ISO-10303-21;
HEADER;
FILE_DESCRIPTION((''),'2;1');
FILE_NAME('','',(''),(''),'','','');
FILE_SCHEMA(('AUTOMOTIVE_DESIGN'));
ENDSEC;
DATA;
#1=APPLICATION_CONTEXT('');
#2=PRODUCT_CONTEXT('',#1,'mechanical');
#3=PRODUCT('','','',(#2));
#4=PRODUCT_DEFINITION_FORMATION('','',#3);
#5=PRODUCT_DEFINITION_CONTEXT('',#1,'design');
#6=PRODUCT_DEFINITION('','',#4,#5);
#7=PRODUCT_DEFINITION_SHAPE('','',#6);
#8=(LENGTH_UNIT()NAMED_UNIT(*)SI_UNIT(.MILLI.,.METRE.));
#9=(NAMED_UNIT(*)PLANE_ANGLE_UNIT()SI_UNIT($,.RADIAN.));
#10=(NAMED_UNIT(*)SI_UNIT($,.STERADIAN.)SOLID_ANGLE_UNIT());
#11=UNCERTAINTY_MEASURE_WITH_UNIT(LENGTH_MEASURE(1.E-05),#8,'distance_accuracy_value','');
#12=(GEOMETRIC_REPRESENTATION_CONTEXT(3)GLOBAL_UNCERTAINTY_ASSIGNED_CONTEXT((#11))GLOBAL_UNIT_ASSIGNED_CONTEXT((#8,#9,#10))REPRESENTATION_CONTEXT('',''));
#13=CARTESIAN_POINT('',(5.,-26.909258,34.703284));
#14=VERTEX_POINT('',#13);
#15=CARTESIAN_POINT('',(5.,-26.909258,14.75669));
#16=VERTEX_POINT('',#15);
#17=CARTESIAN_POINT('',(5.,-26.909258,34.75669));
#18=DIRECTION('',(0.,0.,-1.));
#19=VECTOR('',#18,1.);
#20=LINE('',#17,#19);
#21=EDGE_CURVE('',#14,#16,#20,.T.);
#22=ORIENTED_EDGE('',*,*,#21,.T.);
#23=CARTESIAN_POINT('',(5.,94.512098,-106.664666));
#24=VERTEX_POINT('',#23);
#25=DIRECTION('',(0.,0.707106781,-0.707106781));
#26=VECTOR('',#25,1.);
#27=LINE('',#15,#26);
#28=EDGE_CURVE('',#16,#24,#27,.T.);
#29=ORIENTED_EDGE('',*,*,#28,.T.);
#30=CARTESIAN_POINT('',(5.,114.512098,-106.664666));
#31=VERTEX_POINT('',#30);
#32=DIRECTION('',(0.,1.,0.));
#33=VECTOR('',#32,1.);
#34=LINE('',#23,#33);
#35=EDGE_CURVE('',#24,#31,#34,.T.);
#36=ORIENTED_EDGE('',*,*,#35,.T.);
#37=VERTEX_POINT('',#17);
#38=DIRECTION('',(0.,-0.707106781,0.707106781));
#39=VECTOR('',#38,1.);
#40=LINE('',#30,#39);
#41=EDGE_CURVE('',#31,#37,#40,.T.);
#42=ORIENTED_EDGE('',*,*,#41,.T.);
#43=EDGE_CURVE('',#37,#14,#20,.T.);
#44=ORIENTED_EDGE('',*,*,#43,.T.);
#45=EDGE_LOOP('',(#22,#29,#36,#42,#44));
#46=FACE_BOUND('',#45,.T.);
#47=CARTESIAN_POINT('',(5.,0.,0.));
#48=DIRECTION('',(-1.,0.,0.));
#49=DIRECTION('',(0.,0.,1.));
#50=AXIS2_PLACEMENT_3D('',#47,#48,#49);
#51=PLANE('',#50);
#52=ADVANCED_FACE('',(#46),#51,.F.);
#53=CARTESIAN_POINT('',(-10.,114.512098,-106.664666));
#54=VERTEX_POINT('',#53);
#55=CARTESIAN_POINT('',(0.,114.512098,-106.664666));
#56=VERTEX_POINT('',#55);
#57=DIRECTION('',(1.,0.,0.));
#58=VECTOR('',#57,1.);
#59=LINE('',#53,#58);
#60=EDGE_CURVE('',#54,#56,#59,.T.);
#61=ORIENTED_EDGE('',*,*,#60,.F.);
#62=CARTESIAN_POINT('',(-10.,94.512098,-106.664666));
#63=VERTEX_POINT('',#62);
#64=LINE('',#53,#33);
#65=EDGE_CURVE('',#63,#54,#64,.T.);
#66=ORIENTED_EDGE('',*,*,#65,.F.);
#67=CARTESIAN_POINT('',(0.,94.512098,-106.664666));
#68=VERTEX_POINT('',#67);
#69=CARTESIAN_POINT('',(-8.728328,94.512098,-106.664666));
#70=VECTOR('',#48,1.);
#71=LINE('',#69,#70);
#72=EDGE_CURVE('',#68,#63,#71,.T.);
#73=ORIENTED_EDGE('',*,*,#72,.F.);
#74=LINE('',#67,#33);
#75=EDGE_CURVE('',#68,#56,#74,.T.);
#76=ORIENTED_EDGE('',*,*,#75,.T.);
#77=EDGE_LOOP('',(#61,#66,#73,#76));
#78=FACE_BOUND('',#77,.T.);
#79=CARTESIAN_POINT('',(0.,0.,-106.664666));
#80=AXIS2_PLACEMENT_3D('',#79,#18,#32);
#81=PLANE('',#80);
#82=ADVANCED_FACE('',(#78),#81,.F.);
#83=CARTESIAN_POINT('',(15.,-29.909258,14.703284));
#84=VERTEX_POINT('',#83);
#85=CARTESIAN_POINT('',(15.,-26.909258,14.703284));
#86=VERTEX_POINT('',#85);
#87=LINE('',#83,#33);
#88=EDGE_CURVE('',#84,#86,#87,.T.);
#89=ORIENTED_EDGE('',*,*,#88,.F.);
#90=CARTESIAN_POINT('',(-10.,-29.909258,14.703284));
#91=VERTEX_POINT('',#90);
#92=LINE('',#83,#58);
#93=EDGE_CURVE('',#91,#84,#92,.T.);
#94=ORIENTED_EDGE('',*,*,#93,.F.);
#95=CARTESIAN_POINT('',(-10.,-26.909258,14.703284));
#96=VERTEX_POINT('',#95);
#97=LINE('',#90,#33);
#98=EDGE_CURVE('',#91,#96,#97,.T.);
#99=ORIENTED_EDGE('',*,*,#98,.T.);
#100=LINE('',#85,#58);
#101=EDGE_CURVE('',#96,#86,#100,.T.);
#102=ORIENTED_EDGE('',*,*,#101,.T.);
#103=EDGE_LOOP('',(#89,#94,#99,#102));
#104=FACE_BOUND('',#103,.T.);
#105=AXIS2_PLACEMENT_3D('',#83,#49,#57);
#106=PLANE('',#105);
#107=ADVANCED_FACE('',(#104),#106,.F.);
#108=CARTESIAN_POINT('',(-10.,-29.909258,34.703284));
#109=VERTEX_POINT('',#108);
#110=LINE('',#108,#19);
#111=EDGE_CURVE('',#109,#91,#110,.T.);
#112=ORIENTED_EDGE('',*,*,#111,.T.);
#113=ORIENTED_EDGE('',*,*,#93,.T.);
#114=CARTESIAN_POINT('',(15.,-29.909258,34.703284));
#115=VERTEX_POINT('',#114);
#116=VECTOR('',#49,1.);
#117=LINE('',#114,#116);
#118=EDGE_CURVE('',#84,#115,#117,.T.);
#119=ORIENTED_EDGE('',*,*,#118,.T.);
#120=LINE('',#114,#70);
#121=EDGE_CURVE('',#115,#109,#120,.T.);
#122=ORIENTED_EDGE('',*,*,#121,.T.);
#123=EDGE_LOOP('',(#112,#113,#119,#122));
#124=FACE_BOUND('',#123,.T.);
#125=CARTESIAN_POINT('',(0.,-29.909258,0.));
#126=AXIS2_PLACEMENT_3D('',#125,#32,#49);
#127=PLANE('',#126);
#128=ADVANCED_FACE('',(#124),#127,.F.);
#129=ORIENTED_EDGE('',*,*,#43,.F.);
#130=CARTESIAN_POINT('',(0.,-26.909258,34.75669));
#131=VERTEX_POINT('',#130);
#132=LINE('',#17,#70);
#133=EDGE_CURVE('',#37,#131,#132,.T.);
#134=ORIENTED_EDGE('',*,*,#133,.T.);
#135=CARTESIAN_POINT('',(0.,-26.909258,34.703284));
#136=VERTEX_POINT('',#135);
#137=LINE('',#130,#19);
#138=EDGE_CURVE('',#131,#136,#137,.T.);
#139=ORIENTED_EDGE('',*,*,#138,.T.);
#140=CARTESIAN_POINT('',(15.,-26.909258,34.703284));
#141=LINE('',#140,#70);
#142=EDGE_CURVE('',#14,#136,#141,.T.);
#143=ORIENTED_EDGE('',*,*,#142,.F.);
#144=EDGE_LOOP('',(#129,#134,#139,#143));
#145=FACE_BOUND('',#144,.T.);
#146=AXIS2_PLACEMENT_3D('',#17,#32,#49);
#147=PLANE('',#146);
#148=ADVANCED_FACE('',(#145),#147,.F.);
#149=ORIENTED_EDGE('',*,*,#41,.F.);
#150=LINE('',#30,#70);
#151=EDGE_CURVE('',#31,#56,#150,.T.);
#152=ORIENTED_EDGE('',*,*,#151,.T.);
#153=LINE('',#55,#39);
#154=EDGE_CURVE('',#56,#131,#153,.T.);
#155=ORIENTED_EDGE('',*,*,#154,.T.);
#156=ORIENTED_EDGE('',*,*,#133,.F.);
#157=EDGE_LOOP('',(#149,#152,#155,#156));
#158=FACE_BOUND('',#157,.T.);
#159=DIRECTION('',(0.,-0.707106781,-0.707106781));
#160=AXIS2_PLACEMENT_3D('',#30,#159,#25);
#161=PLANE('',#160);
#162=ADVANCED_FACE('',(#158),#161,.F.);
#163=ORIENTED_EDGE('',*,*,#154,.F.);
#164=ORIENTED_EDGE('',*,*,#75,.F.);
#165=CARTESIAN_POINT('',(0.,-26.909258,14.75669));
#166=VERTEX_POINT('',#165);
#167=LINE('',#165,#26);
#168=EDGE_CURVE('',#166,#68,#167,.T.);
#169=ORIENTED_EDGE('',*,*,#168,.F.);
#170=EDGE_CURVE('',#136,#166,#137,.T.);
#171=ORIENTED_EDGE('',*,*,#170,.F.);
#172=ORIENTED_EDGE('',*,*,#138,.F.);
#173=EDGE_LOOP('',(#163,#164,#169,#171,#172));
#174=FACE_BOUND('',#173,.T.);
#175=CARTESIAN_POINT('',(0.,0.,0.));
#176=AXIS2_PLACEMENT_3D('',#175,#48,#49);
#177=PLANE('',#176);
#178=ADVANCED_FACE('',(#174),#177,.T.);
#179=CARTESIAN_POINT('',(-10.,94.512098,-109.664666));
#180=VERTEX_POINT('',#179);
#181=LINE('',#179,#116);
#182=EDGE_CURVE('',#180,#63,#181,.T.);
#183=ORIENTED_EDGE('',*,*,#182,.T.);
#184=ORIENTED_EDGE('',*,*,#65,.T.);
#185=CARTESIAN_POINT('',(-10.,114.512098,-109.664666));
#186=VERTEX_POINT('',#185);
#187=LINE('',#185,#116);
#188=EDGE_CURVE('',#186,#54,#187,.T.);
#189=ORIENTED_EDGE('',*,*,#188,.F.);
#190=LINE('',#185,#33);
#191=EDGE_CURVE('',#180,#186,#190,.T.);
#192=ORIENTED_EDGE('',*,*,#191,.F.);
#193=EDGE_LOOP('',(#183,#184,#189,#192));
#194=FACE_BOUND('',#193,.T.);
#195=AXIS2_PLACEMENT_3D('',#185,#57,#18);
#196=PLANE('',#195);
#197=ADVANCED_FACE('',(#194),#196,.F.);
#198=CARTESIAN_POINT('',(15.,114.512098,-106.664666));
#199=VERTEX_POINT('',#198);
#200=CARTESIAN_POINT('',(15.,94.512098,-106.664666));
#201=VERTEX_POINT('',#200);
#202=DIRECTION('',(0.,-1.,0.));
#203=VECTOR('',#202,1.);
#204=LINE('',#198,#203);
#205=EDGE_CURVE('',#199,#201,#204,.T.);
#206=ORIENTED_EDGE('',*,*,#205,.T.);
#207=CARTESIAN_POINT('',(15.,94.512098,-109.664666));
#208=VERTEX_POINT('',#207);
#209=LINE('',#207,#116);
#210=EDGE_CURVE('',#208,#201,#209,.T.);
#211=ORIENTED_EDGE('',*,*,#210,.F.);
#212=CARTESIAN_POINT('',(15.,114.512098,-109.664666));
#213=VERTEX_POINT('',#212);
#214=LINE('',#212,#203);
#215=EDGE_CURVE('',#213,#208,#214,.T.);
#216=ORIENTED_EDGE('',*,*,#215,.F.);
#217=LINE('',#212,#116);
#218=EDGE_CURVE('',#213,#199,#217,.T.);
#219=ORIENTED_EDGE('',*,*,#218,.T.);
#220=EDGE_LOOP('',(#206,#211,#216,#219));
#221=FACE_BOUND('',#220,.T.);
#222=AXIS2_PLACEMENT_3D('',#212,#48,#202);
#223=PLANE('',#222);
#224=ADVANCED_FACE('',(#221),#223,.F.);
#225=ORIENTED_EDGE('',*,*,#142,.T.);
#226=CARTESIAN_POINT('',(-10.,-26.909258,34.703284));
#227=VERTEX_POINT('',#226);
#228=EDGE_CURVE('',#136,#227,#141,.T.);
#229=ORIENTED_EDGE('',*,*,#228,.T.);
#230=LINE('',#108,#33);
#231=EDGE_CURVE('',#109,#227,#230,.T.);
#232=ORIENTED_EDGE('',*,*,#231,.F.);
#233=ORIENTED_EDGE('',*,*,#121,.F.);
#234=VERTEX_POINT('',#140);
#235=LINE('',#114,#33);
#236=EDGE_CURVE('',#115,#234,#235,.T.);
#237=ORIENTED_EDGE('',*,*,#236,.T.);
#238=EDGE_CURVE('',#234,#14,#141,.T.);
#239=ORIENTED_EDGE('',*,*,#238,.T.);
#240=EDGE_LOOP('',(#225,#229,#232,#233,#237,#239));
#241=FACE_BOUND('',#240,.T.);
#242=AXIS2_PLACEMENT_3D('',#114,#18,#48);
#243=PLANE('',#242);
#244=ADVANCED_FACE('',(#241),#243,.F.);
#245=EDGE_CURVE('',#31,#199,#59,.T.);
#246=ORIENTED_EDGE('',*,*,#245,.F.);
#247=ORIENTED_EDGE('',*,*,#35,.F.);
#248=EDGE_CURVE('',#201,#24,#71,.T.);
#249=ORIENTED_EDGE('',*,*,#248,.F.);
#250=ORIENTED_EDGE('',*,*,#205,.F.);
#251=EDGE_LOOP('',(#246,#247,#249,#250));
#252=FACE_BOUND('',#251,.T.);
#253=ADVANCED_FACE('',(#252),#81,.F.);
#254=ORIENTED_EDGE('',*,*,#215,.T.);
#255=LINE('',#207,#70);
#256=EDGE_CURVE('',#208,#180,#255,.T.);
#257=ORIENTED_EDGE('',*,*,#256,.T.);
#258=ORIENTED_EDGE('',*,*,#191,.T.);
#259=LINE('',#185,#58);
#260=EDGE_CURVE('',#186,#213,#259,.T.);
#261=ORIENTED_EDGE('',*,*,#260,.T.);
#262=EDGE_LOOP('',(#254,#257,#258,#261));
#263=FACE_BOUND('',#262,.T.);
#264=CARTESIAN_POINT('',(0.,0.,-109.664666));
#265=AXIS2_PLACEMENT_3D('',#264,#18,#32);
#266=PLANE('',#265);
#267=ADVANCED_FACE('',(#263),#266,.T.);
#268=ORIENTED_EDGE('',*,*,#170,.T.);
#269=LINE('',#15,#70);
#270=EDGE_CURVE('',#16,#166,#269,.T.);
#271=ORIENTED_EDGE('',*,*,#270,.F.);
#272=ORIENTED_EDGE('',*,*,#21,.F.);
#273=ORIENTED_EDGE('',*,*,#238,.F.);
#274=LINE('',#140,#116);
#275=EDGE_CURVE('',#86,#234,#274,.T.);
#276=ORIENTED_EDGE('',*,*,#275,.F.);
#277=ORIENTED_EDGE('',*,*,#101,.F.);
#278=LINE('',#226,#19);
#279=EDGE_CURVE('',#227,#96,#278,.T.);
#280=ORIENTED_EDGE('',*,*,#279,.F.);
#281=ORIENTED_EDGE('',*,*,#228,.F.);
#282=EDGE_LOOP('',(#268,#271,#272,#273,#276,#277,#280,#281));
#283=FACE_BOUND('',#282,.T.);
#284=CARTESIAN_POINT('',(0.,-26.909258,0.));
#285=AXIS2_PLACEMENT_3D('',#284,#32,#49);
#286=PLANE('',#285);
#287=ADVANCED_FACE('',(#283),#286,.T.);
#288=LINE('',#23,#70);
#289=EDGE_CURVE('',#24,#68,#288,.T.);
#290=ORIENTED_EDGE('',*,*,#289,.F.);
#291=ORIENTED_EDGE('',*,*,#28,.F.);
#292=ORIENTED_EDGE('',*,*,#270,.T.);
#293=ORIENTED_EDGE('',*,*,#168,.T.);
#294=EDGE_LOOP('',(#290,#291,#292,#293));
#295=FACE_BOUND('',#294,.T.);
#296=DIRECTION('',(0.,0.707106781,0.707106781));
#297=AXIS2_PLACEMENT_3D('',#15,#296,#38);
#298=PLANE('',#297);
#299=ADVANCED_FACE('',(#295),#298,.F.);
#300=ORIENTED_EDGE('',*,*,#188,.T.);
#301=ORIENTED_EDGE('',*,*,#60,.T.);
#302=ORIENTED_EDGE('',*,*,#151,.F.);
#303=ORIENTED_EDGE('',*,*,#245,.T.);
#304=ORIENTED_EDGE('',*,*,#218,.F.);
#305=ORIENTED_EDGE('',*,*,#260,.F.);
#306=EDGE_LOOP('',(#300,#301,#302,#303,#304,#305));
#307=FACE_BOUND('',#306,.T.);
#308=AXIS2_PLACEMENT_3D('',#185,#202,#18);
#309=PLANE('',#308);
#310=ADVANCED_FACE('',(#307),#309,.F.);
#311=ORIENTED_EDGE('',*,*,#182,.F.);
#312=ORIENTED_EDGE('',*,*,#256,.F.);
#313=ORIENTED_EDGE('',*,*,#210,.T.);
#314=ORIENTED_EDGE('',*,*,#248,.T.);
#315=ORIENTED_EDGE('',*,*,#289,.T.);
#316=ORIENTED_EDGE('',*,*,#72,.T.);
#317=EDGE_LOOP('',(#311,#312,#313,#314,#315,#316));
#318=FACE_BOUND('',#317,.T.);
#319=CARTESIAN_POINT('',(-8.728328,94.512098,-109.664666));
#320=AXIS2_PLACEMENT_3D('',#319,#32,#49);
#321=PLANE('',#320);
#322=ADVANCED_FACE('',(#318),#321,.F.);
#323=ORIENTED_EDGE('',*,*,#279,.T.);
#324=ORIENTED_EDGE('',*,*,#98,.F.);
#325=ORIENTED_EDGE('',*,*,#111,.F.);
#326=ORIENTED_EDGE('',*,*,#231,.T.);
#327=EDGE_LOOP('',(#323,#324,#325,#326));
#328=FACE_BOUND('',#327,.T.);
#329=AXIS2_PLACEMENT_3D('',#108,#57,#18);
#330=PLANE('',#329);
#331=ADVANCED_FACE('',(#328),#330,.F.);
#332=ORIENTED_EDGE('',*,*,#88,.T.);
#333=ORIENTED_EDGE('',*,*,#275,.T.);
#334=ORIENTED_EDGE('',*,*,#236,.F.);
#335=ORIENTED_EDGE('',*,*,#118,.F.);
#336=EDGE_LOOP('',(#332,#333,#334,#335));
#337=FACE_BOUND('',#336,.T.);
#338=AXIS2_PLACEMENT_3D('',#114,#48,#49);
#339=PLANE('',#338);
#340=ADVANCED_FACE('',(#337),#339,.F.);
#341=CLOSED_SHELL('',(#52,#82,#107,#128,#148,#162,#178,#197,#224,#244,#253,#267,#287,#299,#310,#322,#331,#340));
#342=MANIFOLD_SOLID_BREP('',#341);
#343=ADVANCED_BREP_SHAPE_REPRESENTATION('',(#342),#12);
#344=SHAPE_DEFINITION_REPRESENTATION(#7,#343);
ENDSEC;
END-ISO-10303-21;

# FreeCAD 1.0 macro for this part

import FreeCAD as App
import Part
import Sketcher
from FreeCAD import Vector

doc = App.newDocument("Part")
body = doc.addObject("PartDesign::Body", "Body")

# Sketch on YZ plane
sketch1 = body.newObject("Sketcher::SketchObject", "Sketch")
sketch1.AttachmentSupport = (doc.getObject("YZ_Plane"), [""])
sketch1.MapMode = "FlatFace"
sketch1.addGeometry(Part.LineSegment(Vector(114.512098, -106.664666, 0), Vector(-26.909258, 34.75669, 0)), False)
sketch1.addGeometry(Part.LineSegment(Vector(-26.909258, 34.75669, 0), Vector(-26.909258, 14.75669, 0)), False)
sketch1.addGeometry(Part.LineSegment(Vector(-26.909258, 14.75669, 0), Vector(94.512098, -106.664666, 0)), False)
sketch1.addGeometry(Part.LineSegment(Vector(94.512098, -106.664666, 0), Vector(114.512098, -106.664666, 0)), False)
sketch1.addConstraint(Sketcher.Constraint("Coincident", 0, 2, 1, 1))
sketch1.addConstraint(Sketcher.Constraint("Coincident", 1, 2, 2, 1))
sketch1.addConstraint(Sketcher.Constraint("Coincident", 2, 2, 3, 1))
sketch1.addConstraint(Sketcher.Constraint("Coincident", 3, 2, 0, 1))
sketch1.addConstraint(Sketcher.Constraint("Vertical", 1))
sketch1.addConstraint(Sketcher.Constraint("Horizontal", 3))
sketch1.addConstraint(Sketcher.Constraint("Parallel", 0, 2))
sketch1.addConstraint(Sketcher.Constraint("Equal", 3, 1))
sketch1.addConstraint(Sketcher.Constraint("DistanceX", 3, 1, 3, 2, 20.0))
sketch1.addConstraint(Sketcher.Constraint("Distance", 0, 200.0))
sketch1.addConstraint(Sketcher.Constraint("DistanceX", 0, 2, -1, 1, 26.909258))
sketch1.addConstraint(Sketcher.Constraint("DistanceY", -1, 1, 0, 2, 34.75669))
pad1 = body.newObject("PartDesign::Pad", "Pad")
pad1.Profile = sketch1
pad1.Length = 5

# Sketch on XZ plane
sketch2 = body.newObject("Sketcher::SketchObject", "Sketch001")
sketch2.AttachmentSupport = (doc.getObject("XZ_Plane"), [""])
sketch2.MapMode = "FlatFace"
sketch2.AttachmentOffset = App.Placement(Vector(0, 0, 26.909258), App.Rotation())
sketch2.addGeometry(Part.LineSegment(Vector(-10, 34.703284, 0), Vector(-10, 14.703284, 0)), False)
sketch2.addGeometry(Part.LineSegment(Vector(-10, 14.703284, 0), Vector(15, 14.703284, 0)), False)
sketch2.addGeometry(Part.LineSegment(Vector(15, 14.703284, 0), Vector(15, 34.703284, 0)), False)
sketch2.addGeometry(Part.LineSegment(Vector(15, 34.703284, 0), Vector(-10, 34.703284, 0)), False)
sketch2.addConstraint(Sketcher.Constraint("Coincident", 0, 2, 1, 1))
sketch2.addConstraint(Sketcher.Constraint("Coincident", 1, 2, 2, 1))
sketch2.addConstraint(Sketcher.Constraint("Coincident", 2, 2, 3, 1))
sketch2.addConstraint(Sketcher.Constraint("Coincident", 3, 2, 0, 1))
sketch2.addConstraint(Sketcher.Constraint("Vertical", 0))
sketch2.addConstraint(Sketcher.Constraint("Horizontal", 1))
sketch2.addConstraint(Sketcher.Constraint("Vertical", 2))
sketch2.addConstraint(Sketcher.Constraint("Horizontal", 3))
sketch2.addConstraint(Sketcher.Constraint("DistanceX", 1, 1, 1, 2, 25.0))
sketch2.addConstraint(Sketcher.Constraint("DistanceY", 0, 2, 0, 1, 20.0))
sketch2.addConstraint(Sketcher.Constraint("DistanceX", 0, 2, -1, 1, 10.0))
sketch2.addConstraint(Sketcher.Constraint("DistanceY", -1, 1, 0, 2, 14.703284))
pad2 = body.newObject("PartDesign::Pad", "Pad001")
pad2.Profile = sketch2
pad2.Length = 3

# Sketch on XY plane
sketch3 = body.newObject("Sketcher::SketchObject", "Sketch002")
sketch3.AttachmentSupport = (doc.getObject("XY_Plane"), [""])
sketch3.MapMode = "FlatFace"
sketch3.AttachmentOffset = App.Placement(Vector(0, 0, -106.664666), App.Rotation())
sketch3.addGeometry(Part.LineSegment(Vector(-10, 94.512098, 0), Vector(-10, 114.512098, 0)), False)
sketch3.addGeometry(Part.LineSegment(Vector(-10, 114.512098, 0), Vector(15, 114.512098, 0)), False)
sketch3.addGeometry(Part.LineSegment(Vector(15, 114.512098, 0), Vector(15, 94.512098, 0)), False)
sketch3.addGeometry(Part.LineSegment(Vector(15, 94.512098, 0), Vector(-10, 94.512098, 0)), False)
sketch3.addConstraint(Sketcher.Constraint("Coincident", 0, 2, 1, 1))
sketch3.addConstraint(Sketcher.Constraint("Coincident", 1, 2, 2, 1))
sketch3.addConstraint(Sketcher.Constraint("Coincident", 2, 2, 3, 1))
sketch3.addConstraint(Sketcher.Constraint("Coincident", 3, 2, 0, 1))
sketch3.addConstraint(Sketcher.Constraint("Vertical", 0))
sketch3.addConstraint(Sketcher.Constraint("Horizontal", 1))
sketch3.addConstraint(Sketcher.Constraint("Vertical", 2))
sketch3.addConstraint(Sketcher.Constraint("Horizontal", 3))
sketch3.addConstraint(Sketcher.Constraint("DistanceX", 1, 1, 1, 2, 25.0))
sketch3.addConstraint(Sketcher.Constraint("DistanceY", 0, 1, 0, 2, 20.0))
sketch3.addConstraint(Sketcher.Constraint("DistanceX", 0, 2, -1, 1, 10.0))
sketch3.addConstraint(Sketcher.Constraint("DistanceY", -1, 1, 0, 2, 114.512098))
pad3 = body.newObject("PartDesign::Pad", "Pad002")
pad3.Profile = sketch3
pad3.Length = 3
pad3.Reversed = True

doc.recompute()
